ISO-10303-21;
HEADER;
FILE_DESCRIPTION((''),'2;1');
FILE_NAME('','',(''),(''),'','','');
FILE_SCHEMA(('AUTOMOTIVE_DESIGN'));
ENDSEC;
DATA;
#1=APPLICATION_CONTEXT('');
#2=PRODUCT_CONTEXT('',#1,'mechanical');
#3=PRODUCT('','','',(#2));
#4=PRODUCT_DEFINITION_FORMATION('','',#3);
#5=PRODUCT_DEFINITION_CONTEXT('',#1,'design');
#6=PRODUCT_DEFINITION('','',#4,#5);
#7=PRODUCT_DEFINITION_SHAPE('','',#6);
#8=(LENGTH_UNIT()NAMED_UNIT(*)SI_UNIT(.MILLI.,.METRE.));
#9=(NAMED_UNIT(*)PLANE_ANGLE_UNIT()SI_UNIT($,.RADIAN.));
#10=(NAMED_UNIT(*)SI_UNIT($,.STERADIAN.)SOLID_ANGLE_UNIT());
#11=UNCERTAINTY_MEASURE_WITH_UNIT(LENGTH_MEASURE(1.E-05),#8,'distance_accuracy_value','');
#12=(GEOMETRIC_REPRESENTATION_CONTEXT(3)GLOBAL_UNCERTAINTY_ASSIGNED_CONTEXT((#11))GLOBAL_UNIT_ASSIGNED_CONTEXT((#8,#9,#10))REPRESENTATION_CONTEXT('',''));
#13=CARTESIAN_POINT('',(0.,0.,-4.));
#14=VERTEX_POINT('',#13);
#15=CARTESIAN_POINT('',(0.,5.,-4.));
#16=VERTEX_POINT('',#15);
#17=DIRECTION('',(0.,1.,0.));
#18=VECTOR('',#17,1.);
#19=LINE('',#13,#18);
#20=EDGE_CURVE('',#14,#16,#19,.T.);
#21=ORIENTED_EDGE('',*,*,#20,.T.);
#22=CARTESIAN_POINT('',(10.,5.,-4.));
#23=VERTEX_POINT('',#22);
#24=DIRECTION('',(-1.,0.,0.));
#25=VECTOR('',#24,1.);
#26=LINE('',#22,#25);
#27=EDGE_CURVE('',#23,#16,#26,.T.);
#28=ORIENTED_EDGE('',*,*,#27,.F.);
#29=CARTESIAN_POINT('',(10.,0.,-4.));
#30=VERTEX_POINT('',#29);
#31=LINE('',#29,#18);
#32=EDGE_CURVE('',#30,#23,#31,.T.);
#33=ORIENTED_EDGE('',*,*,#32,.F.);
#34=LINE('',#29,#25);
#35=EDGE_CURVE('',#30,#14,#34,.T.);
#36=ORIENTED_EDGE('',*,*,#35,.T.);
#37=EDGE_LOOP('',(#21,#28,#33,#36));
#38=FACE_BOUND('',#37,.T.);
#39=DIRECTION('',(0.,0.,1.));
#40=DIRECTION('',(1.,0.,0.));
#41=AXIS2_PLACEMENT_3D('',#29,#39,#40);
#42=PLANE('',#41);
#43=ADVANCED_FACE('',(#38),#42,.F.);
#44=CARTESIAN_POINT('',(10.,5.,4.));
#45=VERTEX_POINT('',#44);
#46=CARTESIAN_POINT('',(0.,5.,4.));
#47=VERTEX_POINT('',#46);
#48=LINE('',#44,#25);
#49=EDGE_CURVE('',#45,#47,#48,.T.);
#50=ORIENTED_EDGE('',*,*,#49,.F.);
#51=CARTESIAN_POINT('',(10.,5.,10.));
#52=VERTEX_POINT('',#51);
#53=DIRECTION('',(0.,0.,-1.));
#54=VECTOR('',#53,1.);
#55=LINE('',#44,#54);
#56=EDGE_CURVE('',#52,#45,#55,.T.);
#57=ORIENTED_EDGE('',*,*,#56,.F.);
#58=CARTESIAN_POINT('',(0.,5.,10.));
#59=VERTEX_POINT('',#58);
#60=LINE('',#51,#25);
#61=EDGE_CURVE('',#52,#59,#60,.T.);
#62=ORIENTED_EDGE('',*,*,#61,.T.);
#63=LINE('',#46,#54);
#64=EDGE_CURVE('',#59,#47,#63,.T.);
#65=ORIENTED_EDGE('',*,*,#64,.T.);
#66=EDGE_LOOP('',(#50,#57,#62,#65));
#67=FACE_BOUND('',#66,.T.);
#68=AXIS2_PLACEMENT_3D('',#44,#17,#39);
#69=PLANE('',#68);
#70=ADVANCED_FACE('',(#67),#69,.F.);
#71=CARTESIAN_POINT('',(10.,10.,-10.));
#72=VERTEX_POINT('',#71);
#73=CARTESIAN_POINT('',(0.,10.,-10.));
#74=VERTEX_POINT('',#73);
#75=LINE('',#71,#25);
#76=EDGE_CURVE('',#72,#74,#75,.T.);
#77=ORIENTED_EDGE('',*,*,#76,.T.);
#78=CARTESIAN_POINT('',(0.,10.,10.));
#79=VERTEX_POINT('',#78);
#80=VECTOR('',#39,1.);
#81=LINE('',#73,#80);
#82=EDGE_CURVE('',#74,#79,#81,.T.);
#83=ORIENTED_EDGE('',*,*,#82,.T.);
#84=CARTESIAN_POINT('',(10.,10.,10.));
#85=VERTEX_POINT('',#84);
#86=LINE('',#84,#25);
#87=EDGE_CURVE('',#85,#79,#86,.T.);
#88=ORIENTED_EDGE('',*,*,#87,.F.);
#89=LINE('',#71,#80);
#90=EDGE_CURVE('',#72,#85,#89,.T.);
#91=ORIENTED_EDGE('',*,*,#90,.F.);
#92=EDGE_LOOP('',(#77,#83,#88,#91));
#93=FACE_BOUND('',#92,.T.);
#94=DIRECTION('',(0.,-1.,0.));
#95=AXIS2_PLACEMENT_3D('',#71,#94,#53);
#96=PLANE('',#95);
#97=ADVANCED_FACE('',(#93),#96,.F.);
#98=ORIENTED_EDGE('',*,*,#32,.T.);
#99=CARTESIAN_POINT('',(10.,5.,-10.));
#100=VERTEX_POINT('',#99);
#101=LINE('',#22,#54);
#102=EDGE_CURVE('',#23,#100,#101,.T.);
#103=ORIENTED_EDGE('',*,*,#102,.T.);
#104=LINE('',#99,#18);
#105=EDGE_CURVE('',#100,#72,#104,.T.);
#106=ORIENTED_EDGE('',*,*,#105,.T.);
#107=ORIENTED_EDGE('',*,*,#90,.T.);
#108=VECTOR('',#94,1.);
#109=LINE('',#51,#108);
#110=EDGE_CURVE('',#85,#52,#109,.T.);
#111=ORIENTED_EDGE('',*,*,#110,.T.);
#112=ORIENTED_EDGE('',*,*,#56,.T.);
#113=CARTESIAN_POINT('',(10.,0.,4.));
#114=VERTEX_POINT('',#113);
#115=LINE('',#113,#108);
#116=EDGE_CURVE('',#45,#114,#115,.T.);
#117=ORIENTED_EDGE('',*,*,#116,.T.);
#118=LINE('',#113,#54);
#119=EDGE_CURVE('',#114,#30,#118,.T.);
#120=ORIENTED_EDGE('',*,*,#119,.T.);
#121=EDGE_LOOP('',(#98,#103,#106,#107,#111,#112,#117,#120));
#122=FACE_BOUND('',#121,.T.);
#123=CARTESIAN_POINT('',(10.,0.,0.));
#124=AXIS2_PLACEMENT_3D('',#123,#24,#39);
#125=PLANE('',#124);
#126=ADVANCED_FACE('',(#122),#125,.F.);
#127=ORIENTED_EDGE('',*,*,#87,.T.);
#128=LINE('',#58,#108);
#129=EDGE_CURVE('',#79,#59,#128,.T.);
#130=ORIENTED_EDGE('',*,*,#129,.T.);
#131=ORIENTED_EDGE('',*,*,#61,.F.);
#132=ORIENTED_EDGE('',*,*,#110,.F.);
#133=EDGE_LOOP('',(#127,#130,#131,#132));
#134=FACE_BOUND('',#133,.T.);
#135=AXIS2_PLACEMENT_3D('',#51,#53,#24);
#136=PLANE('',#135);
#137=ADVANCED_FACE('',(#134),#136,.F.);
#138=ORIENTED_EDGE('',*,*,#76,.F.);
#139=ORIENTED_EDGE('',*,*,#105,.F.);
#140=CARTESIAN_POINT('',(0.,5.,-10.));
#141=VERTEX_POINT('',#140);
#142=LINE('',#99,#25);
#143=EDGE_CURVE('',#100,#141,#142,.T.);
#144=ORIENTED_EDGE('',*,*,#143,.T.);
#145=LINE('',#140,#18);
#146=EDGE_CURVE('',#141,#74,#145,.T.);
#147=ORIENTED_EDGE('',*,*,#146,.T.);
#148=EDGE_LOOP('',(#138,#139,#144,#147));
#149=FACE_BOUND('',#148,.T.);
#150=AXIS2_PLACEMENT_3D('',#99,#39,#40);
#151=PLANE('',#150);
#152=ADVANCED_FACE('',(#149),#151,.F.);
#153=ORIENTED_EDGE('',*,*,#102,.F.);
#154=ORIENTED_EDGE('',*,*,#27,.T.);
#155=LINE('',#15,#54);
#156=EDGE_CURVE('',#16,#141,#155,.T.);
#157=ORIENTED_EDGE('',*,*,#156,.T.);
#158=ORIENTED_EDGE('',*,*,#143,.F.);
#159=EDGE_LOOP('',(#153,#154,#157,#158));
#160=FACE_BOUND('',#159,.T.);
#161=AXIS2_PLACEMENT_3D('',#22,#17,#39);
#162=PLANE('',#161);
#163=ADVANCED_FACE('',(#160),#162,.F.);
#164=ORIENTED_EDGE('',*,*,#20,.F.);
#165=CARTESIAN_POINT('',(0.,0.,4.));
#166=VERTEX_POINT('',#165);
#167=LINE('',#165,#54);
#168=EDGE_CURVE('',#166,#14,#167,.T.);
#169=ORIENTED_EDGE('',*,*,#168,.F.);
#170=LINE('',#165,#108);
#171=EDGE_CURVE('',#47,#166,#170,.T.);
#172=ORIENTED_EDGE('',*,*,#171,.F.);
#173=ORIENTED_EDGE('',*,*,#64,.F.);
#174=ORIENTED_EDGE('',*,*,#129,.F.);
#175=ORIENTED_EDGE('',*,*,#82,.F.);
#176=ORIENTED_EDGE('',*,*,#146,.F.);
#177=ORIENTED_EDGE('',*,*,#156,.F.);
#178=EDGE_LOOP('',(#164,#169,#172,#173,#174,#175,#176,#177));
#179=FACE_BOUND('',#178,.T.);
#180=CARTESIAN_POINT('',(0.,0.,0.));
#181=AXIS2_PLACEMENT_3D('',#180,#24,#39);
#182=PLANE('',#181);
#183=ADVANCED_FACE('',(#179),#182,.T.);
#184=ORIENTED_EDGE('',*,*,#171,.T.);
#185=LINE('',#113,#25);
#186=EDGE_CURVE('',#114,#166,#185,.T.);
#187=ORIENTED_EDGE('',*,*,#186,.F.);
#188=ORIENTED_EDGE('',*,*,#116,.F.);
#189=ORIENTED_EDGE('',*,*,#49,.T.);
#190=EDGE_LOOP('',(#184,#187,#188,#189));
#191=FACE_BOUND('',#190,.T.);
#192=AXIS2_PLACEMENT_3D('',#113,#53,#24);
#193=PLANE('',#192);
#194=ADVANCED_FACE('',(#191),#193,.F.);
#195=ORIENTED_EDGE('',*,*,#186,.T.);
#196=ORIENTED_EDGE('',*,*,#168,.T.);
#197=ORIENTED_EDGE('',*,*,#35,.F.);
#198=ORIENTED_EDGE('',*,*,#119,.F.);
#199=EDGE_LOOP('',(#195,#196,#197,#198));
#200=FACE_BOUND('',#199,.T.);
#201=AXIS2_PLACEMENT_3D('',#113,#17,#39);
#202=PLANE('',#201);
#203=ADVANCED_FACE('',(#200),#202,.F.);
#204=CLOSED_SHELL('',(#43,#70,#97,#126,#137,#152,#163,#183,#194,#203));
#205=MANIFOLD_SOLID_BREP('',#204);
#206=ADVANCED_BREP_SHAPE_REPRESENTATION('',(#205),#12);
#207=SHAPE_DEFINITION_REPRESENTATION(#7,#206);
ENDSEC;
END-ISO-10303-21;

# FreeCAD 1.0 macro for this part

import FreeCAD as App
import Part
import Sketcher
from FreeCAD import Vector

doc = App.newDocument("Part")
body = doc.addObject("PartDesign::Body", "Body")

sketch1 = doc.addObject("Sketcher::SketchObject", "Sketch")
body.addObject(sketch1)
sketch1.AttachmentSupport = (doc.YZ_Plane, [""])
sketch1.MapMode = "FlatFace"
sketch1.addGeometry(Part.LineSegment(Vector(0, 4, 0), Vector(0, -4, 0)), False)
sketch1.addGeometry(Part.LineSegment(Vector(0, -4, 0), Vector(5, -4, 0)), False)
sketch1.addGeometry(Part.LineSegment(Vector(5, -4, 0), Vector(5, -10, 0)), False)
sketch1.addGeometry(Part.LineSegment(Vector(5, -10, 0), Vector(10, -10, 0)), False)
sketch1.addGeometry(Part.LineSegment(Vector(10, -10, 0), Vector(10, 10, 0)), False)
sketch1.addGeometry(Part.LineSegment(Vector(10, 10, 0), Vector(5, 10, 0)), False)
sketch1.addGeometry(Part.LineSegment(Vector(5, 10, 0), Vector(5, 4, 0)), False)
sketch1.addGeometry(Part.LineSegment(Vector(5, 4, 0), Vector(0, 4, 0)), False)
sketch1.addConstraint(Sketcher.Constraint("Coincident", 0, 2, 1, 1))
sketch1.addConstraint(Sketcher.Constraint("Coincident", 1, 2, 2, 1))
sketch1.addConstraint(Sketcher.Constraint("Coincident", 2, 2, 3, 1))
sketch1.addConstraint(Sketcher.Constraint("Coincident", 3, 2, 4, 1))
sketch1.addConstraint(Sketcher.Constraint("Coincident", 4, 2, 5, 1))
sketch1.addConstraint(Sketcher.Constraint("Coincident", 5, 2, 6, 1))
sketch1.addConstraint(Sketcher.Constraint("Coincident", 6, 2, 7, 1))
sketch1.addConstraint(Sketcher.Constraint("Coincident", 7, 2, 0, 1))
sketch1.addConstraint(Sketcher.Constraint("Vertical", 0))
sketch1.addConstraint(Sketcher.Constraint("Horizontal", 1))
sketch1.addConstraint(Sketcher.Constraint("Vertical", 2))
sketch1.addConstraint(Sketcher.Constraint("Horizontal", 3))
sketch1.addConstraint(Sketcher.Constraint("Vertical", 4))
sketch1.addConstraint(Sketcher.Constraint("Horizontal", 5))
sketch1.addConstraint(Sketcher.Constraint("Vertical", 6))
sketch1.addConstraint(Sketcher.Constraint("Horizontal", 7))
sketch1.addConstraint(Sketcher.Constraint("Symmetric", 0, 2, 7, 2, -1, 1))
sketch1.addConstraint(Sketcher.Constraint("Symmetric", 2, 2, 5, 2, -1))
sketch1.addConstraint(Sketcher.Constraint("Equal", 1, 3))
sketch1.addConstraint(Sketcher.Constraint("DistanceX", 1, 1, 1, 2, 5.0))
sketch1.addConstraint(Sketcher.Constraint("DistanceY", 0, 2, 0, 1, 8.0))
sketch1.addConstraint(Sketcher.Constraint("DistanceY", 2, 2, 2, 1, 6.0))
pad1 = doc.addObject("PartDesign::Pad", "Pad")
body.addObject(pad1)
pad1.Profile = sketch1
pad1.Length = 10

doc.recompute()
